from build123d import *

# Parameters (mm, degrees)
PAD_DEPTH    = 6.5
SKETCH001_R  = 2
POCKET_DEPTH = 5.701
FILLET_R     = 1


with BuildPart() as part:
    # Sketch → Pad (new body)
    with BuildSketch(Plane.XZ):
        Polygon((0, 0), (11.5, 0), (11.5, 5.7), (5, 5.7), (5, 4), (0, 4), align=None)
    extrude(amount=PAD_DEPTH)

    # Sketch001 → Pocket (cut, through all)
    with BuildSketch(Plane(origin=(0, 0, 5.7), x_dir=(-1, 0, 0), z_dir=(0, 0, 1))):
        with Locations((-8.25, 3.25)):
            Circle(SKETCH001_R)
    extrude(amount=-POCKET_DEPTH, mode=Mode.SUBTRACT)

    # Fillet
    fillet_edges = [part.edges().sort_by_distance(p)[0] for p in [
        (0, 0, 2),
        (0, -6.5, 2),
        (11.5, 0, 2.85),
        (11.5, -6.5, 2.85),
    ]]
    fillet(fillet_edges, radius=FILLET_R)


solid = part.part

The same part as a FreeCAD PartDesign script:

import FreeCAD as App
import Part
import Sketcher
from FreeCAD import Vector
Q = App.Units.Quantity


def edges_at(feature, points):
    """Names of the edges that pass closest to the given points."""
    edges = feature.Shape.Edges
    near = lambda p: min(range(len(edges)), key=lambda i: edges[i].distToShape(Part.Vertex(*p))[0])
    return sorted({f"Edge{near(p) + 1}" for p in points})

doc = App.newDocument("Part")
body = doc.addObject("PartDesign::Body", "Body")

sketch1 = body.newObject("Sketcher::SketchObject", "Sketch")
sketch1.AttachmentSupport = (doc.getObject("XZ_Plane"), [""])
sketch1.MapMode = "FlatFace"
sketch1.addGeometry([
    Part.LineSegment(Vector(0, 0, 0), Vector(11.5, 0, 0)),
    Part.LineSegment(Vector(11.5, 0, 0), Vector(11.5, 5.7, 0)),
    Part.LineSegment(Vector(11.5, 5.7, 0), Vector(5, 5.7, 0)),
    Part.LineSegment(Vector(5, 5.7, 0), Vector(5, 4, 0)),
    Part.LineSegment(Vector(5, 4, 0), Vector(0, 4, 0)),
    Part.LineSegment(Vector(0, 4, 0), Vector(0, 0, 0)),
], False)
sketch1.addConstraint([
    Sketcher.Constraint("Coincident", 0, 2, 1, 1),
    Sketcher.Constraint("Coincident", 1, 2, 2, 1),
    Sketcher.Constraint("Coincident", 2, 2, 3, 1),
    Sketcher.Constraint("Coincident", 3, 2, 4, 1),
    Sketcher.Constraint("Coincident", 4, 2, 5, 1),
    Sketcher.Constraint("Coincident", 5, 2, 0, 1),
    Sketcher.Constraint("Horizontal", 0),
    Sketcher.Constraint("Vertical", 1),
    Sketcher.Constraint("Horizontal", 2),
    Sketcher.Constraint("Vertical", 3),
    Sketcher.Constraint("Horizontal", 4),
    Sketcher.Constraint("Vertical", 5),
    Sketcher.Constraint("Coincident", 5, 2, -1, 1),
    Sketcher.Constraint("DistanceX", 4, 2, 4, 1, Q("5 mm")),
    Sketcher.Constraint("DistanceY", 5, 2, 5, 1, Q("4 mm")),
    Sketcher.Constraint("DistanceX", 0, 1, 0, 2, Q("11.5 mm")),
    Sketcher.Constraint("DistanceY", 1, 1, 1, 2, Q("5.7 mm")),
])
pad1 = body.newObject("PartDesign::Pad", "Pad")
pad1.Profile = sketch1
pad1.Length = 6.5

sketch2 = body.newObject("Sketcher::SketchObject", "Sketch001")
sketch2.AttachmentSupport = (doc.getObject("XY_Plane"), [""])
sketch2.MapMode = "FlatFace"
sketch2.AttachmentOffset = App.Placement(Vector(0, 0, 5.7), App.Rotation())
sketch2.addGeometry(Part.Circle(Vector(8.25, -3.25, 0), Vector(0, 0, 1), 2), False)
sketch2.addConstraint([
    Sketcher.Constraint("Diameter", 0, Q("4 mm")),
    Sketcher.Constraint("DistanceX", -1, 1, 0, 3, Q("8.25 mm")),
    Sketcher.Constraint("DistanceY", 0, 3, -1, 1, Q("3.25 mm")),
])
pocket1 = body.newObject("PartDesign::Pocket", "Pocket")
pocket1.Profile = sketch2
pocket1.Type = "ThroughAll"
doc.recompute()

fillet = body.newObject("PartDesign::Fillet", "Fillet")
fillet.Base = (pocket1, edges_at(pocket1, [
    (0, 0, 2),
    (0, -6.5, 2),
    (11.5, 0, 2.85),
    (11.5, -6.5, 2.85),
]))
fillet.Radius = 1

doc.recompute()
